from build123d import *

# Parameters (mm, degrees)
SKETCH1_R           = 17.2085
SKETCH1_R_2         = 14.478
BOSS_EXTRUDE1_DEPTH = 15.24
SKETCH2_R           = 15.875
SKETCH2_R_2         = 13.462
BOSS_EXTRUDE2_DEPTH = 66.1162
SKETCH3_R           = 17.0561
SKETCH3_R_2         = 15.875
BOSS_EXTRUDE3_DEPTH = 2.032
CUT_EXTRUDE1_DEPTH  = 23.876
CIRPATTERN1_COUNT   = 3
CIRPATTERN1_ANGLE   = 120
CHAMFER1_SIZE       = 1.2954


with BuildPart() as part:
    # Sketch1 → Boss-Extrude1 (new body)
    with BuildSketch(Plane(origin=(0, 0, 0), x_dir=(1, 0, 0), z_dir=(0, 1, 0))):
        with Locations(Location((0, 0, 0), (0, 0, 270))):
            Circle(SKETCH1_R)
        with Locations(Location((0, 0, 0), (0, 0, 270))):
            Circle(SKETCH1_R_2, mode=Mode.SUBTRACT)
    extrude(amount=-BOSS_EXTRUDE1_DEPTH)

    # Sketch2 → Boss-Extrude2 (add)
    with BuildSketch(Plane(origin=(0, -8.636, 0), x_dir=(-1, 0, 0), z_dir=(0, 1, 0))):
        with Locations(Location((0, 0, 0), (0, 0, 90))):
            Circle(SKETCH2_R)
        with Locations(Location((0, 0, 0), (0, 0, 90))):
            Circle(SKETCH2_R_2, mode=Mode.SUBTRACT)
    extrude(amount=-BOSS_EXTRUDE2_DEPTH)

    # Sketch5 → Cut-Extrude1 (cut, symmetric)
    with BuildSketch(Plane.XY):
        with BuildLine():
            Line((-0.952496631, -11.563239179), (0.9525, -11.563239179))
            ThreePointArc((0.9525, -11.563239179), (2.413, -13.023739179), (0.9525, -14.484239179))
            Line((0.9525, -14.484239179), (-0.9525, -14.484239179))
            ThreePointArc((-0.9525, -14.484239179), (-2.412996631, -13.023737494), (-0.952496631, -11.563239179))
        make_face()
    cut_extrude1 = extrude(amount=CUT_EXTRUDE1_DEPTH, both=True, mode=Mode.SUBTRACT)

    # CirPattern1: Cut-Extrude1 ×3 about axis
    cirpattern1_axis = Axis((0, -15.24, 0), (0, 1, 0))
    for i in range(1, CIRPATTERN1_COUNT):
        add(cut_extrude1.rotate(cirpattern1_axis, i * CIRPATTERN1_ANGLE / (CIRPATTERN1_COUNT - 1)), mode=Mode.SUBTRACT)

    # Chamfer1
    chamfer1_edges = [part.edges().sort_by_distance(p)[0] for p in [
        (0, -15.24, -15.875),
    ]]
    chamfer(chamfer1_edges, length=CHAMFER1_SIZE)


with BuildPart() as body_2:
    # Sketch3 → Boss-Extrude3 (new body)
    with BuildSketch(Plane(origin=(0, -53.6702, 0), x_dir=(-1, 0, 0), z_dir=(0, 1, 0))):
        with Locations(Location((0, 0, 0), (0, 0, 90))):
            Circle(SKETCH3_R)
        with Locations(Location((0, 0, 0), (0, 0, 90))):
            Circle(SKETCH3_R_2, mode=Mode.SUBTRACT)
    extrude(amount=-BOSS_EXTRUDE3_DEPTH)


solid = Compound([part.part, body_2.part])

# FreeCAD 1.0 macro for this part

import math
import FreeCAD as App
import Part
import Sketcher

V = App.Vector
Q = App.Units.Quantity


def edges_at(feature, points):
    """Names of the edges that pass closest to the given points."""
    edges = feature.Shape.Edges
    near = lambda p: min(range(len(edges)), key=lambda i: edges[i].distToShape(Part.Vertex(*p))[0])
    return sorted({f"Edge{near(p) + 1}" for p in points})

doc = App.newDocument("Part")
body = doc.addObject("PartDesign::Body", "Body")

sketch1 = body.newObject("Sketcher::SketchObject", "Sketch")
sketch1.AttachmentSupport = (doc.getObject("XZ_Plane"), [""])
sketch1.MapMode = "FlatFace"
sketch1.addGeometry([
    Part.Circle(V(0, 0, 0), V(0, 0, 1), 17),
    Part.Circle(V(0, 0, 0), V(0, 0, 1), 14),
], False)
sketch1.addConstraint([
    Sketcher.Constraint("Coincident", 0, 3, -1, 1),
    Sketcher.Constraint("Coincident", 1, 3, -1, 1),
    Sketcher.Constraint("Diameter", 1, Q("1.14 in")),
    Sketcher.Constraint("Diameter", 0, Q("1.355 in")),
])
pad1 = body.newObject("PartDesign::Pad", "Pad")
pad1.Profile = sketch1
pad1.Length = Q("0.6 in")

sketch2 = body.newObject("Sketcher::SketchObject", "Sketch001")
sketch2.AttachmentSupport = (doc.getObject("XZ_Plane"), [""])
sketch2.MapMode = "FlatFace"
sketch2.AttachmentOffset = App.Placement(V(0, 0, 0.34 * 25.4), App.Rotation())
sketch2.addGeometry([
    Part.Circle(V(0, 0, 0), V(0, 0, 1), 16),
    Part.Circle(V(0, 0, 0), V(0, 0, 1), 13),
], False)
sketch2.addConstraint([
    Sketcher.Constraint("Coincident", 0, 3, -1, 1),
    Sketcher.Constraint("Coincident", 1, 3, -1, 1),
    Sketcher.Constraint("Diameter", 0, Q("1.25 in")),
    Sketcher.Constraint("Diameter", 1, Q("1.06 in")),
])
pad2 = body.newObject("PartDesign::Pad", "Pad001")
pad2.Profile = sketch2
pad2.Length = Q("2.603 in")

sketch3 = body.newObject("Sketcher::SketchObject", "Sketch002")
sketch3.AttachmentSupport = (doc.getObject("XY_Plane"), [""])
sketch3.MapMode = "FlatFace"
sketch3.addGeometry([
    Part.LineSegment(V(1, -11.6, 0), V(-1, -11.6, 0)),
    Part.ArcOfCircle(Part.Circle(V(-1, -13, 0), V(0, 0, 1), 1.5), math.radians(90), math.radians(270)),
    Part.LineSegment(V(-1, -14.5, 0), V(1, -14.5, 0)),
    Part.ArcOfCircle(Part.Circle(V(1, -13, 0), V(0, 0, 1), 1.5), math.radians(-90), math.radians(90)),
], False)
sketch3.addConstraint([
    Sketcher.Constraint("Tangent", 0, 2, 1, 1),
    Sketcher.Constraint("Coincident", 1, 2, 2, 1),
    Sketcher.Constraint("Tangent", 2, 2, 3, 1),
    Sketcher.Constraint("Tangent", 3, 2, 0, 1),
    Sketcher.Constraint("Horizontal", 0),
    Sketcher.Constraint("Horizontal", 2),
    Sketcher.Constraint("Radius", 1, Q("0.0575 in")),
    Sketcher.Constraint("DistanceX", 0, 2, 0, 1, Q("0.0749999 in")),
    Sketcher.Constraint("DistanceX", 2, 1, 2, 2, Q("0.075 in")),
    Sketcher.Constraint("DistanceX", 1, 3, -1, 1, Q("0.0374999 in")),
    Sketcher.Constraint("DistanceY", 1, 3, -1, 1, 13.023739),
])
pocket1 = body.newObject("PartDesign::Pocket", "Pocket")
pocket1.Profile = sketch3
pocket1.Length = Q("1.88 in")
pocket1.Midplane = True
doc.recompute()

polarpattern = body.newObject("PartDesign::PolarPattern", "PolarPattern")
polarpattern.Originals = [pocket1]
polarpattern.Axis = (doc.getObject("Y_Axis"), [""])
polarpattern.Angle = 120
polarpattern.Occurrences = 3
body.Tip = polarpattern
doc.recompute()

chamfer = body.newObject("PartDesign::Chamfer", "Chamfer")
chamfer.Base = (polarpattern, edges_at(polarpattern, [(0, -15.24, -15.875)]))
chamfer.Size = Q("0.051 in")
body2 = doc.addObject("PartDesign::Body", "Body001")

sketch4 = body2.newObject("Sketcher::SketchObject", "Sketch003")
sketch4.AttachmentSupport = (doc.getObject("XZ_Plane001"), [""])
sketch4.MapMode = "FlatFace"
sketch4.AttachmentOffset = App.Placement(V(0, 0, 2.113 * 25.4), App.Rotation())
sketch4.addGeometry([
    Part.Circle(V(0, 0, 0), V(0, 0, 1), 17),
    Part.Circle(V(0, 0, 0), V(0, 0, 1), 16),
], False)
sketch4.addConstraint([
    Sketcher.Constraint("Coincident", 0, 3, -1, 1),
    Sketcher.Constraint("Coincident", 1, 3, -1, 1),
    Sketcher.Constraint("Diameter", 1, Q("1.25 in")),
    Sketcher.Constraint("Diameter", 0, Q("1.343 in")),
])
pad3 = body2.newObject("PartDesign::Pad", "Pad002")
pad3.Profile = sketch4
pad3.Length = Q("0.08 in")

doc.recompute()
